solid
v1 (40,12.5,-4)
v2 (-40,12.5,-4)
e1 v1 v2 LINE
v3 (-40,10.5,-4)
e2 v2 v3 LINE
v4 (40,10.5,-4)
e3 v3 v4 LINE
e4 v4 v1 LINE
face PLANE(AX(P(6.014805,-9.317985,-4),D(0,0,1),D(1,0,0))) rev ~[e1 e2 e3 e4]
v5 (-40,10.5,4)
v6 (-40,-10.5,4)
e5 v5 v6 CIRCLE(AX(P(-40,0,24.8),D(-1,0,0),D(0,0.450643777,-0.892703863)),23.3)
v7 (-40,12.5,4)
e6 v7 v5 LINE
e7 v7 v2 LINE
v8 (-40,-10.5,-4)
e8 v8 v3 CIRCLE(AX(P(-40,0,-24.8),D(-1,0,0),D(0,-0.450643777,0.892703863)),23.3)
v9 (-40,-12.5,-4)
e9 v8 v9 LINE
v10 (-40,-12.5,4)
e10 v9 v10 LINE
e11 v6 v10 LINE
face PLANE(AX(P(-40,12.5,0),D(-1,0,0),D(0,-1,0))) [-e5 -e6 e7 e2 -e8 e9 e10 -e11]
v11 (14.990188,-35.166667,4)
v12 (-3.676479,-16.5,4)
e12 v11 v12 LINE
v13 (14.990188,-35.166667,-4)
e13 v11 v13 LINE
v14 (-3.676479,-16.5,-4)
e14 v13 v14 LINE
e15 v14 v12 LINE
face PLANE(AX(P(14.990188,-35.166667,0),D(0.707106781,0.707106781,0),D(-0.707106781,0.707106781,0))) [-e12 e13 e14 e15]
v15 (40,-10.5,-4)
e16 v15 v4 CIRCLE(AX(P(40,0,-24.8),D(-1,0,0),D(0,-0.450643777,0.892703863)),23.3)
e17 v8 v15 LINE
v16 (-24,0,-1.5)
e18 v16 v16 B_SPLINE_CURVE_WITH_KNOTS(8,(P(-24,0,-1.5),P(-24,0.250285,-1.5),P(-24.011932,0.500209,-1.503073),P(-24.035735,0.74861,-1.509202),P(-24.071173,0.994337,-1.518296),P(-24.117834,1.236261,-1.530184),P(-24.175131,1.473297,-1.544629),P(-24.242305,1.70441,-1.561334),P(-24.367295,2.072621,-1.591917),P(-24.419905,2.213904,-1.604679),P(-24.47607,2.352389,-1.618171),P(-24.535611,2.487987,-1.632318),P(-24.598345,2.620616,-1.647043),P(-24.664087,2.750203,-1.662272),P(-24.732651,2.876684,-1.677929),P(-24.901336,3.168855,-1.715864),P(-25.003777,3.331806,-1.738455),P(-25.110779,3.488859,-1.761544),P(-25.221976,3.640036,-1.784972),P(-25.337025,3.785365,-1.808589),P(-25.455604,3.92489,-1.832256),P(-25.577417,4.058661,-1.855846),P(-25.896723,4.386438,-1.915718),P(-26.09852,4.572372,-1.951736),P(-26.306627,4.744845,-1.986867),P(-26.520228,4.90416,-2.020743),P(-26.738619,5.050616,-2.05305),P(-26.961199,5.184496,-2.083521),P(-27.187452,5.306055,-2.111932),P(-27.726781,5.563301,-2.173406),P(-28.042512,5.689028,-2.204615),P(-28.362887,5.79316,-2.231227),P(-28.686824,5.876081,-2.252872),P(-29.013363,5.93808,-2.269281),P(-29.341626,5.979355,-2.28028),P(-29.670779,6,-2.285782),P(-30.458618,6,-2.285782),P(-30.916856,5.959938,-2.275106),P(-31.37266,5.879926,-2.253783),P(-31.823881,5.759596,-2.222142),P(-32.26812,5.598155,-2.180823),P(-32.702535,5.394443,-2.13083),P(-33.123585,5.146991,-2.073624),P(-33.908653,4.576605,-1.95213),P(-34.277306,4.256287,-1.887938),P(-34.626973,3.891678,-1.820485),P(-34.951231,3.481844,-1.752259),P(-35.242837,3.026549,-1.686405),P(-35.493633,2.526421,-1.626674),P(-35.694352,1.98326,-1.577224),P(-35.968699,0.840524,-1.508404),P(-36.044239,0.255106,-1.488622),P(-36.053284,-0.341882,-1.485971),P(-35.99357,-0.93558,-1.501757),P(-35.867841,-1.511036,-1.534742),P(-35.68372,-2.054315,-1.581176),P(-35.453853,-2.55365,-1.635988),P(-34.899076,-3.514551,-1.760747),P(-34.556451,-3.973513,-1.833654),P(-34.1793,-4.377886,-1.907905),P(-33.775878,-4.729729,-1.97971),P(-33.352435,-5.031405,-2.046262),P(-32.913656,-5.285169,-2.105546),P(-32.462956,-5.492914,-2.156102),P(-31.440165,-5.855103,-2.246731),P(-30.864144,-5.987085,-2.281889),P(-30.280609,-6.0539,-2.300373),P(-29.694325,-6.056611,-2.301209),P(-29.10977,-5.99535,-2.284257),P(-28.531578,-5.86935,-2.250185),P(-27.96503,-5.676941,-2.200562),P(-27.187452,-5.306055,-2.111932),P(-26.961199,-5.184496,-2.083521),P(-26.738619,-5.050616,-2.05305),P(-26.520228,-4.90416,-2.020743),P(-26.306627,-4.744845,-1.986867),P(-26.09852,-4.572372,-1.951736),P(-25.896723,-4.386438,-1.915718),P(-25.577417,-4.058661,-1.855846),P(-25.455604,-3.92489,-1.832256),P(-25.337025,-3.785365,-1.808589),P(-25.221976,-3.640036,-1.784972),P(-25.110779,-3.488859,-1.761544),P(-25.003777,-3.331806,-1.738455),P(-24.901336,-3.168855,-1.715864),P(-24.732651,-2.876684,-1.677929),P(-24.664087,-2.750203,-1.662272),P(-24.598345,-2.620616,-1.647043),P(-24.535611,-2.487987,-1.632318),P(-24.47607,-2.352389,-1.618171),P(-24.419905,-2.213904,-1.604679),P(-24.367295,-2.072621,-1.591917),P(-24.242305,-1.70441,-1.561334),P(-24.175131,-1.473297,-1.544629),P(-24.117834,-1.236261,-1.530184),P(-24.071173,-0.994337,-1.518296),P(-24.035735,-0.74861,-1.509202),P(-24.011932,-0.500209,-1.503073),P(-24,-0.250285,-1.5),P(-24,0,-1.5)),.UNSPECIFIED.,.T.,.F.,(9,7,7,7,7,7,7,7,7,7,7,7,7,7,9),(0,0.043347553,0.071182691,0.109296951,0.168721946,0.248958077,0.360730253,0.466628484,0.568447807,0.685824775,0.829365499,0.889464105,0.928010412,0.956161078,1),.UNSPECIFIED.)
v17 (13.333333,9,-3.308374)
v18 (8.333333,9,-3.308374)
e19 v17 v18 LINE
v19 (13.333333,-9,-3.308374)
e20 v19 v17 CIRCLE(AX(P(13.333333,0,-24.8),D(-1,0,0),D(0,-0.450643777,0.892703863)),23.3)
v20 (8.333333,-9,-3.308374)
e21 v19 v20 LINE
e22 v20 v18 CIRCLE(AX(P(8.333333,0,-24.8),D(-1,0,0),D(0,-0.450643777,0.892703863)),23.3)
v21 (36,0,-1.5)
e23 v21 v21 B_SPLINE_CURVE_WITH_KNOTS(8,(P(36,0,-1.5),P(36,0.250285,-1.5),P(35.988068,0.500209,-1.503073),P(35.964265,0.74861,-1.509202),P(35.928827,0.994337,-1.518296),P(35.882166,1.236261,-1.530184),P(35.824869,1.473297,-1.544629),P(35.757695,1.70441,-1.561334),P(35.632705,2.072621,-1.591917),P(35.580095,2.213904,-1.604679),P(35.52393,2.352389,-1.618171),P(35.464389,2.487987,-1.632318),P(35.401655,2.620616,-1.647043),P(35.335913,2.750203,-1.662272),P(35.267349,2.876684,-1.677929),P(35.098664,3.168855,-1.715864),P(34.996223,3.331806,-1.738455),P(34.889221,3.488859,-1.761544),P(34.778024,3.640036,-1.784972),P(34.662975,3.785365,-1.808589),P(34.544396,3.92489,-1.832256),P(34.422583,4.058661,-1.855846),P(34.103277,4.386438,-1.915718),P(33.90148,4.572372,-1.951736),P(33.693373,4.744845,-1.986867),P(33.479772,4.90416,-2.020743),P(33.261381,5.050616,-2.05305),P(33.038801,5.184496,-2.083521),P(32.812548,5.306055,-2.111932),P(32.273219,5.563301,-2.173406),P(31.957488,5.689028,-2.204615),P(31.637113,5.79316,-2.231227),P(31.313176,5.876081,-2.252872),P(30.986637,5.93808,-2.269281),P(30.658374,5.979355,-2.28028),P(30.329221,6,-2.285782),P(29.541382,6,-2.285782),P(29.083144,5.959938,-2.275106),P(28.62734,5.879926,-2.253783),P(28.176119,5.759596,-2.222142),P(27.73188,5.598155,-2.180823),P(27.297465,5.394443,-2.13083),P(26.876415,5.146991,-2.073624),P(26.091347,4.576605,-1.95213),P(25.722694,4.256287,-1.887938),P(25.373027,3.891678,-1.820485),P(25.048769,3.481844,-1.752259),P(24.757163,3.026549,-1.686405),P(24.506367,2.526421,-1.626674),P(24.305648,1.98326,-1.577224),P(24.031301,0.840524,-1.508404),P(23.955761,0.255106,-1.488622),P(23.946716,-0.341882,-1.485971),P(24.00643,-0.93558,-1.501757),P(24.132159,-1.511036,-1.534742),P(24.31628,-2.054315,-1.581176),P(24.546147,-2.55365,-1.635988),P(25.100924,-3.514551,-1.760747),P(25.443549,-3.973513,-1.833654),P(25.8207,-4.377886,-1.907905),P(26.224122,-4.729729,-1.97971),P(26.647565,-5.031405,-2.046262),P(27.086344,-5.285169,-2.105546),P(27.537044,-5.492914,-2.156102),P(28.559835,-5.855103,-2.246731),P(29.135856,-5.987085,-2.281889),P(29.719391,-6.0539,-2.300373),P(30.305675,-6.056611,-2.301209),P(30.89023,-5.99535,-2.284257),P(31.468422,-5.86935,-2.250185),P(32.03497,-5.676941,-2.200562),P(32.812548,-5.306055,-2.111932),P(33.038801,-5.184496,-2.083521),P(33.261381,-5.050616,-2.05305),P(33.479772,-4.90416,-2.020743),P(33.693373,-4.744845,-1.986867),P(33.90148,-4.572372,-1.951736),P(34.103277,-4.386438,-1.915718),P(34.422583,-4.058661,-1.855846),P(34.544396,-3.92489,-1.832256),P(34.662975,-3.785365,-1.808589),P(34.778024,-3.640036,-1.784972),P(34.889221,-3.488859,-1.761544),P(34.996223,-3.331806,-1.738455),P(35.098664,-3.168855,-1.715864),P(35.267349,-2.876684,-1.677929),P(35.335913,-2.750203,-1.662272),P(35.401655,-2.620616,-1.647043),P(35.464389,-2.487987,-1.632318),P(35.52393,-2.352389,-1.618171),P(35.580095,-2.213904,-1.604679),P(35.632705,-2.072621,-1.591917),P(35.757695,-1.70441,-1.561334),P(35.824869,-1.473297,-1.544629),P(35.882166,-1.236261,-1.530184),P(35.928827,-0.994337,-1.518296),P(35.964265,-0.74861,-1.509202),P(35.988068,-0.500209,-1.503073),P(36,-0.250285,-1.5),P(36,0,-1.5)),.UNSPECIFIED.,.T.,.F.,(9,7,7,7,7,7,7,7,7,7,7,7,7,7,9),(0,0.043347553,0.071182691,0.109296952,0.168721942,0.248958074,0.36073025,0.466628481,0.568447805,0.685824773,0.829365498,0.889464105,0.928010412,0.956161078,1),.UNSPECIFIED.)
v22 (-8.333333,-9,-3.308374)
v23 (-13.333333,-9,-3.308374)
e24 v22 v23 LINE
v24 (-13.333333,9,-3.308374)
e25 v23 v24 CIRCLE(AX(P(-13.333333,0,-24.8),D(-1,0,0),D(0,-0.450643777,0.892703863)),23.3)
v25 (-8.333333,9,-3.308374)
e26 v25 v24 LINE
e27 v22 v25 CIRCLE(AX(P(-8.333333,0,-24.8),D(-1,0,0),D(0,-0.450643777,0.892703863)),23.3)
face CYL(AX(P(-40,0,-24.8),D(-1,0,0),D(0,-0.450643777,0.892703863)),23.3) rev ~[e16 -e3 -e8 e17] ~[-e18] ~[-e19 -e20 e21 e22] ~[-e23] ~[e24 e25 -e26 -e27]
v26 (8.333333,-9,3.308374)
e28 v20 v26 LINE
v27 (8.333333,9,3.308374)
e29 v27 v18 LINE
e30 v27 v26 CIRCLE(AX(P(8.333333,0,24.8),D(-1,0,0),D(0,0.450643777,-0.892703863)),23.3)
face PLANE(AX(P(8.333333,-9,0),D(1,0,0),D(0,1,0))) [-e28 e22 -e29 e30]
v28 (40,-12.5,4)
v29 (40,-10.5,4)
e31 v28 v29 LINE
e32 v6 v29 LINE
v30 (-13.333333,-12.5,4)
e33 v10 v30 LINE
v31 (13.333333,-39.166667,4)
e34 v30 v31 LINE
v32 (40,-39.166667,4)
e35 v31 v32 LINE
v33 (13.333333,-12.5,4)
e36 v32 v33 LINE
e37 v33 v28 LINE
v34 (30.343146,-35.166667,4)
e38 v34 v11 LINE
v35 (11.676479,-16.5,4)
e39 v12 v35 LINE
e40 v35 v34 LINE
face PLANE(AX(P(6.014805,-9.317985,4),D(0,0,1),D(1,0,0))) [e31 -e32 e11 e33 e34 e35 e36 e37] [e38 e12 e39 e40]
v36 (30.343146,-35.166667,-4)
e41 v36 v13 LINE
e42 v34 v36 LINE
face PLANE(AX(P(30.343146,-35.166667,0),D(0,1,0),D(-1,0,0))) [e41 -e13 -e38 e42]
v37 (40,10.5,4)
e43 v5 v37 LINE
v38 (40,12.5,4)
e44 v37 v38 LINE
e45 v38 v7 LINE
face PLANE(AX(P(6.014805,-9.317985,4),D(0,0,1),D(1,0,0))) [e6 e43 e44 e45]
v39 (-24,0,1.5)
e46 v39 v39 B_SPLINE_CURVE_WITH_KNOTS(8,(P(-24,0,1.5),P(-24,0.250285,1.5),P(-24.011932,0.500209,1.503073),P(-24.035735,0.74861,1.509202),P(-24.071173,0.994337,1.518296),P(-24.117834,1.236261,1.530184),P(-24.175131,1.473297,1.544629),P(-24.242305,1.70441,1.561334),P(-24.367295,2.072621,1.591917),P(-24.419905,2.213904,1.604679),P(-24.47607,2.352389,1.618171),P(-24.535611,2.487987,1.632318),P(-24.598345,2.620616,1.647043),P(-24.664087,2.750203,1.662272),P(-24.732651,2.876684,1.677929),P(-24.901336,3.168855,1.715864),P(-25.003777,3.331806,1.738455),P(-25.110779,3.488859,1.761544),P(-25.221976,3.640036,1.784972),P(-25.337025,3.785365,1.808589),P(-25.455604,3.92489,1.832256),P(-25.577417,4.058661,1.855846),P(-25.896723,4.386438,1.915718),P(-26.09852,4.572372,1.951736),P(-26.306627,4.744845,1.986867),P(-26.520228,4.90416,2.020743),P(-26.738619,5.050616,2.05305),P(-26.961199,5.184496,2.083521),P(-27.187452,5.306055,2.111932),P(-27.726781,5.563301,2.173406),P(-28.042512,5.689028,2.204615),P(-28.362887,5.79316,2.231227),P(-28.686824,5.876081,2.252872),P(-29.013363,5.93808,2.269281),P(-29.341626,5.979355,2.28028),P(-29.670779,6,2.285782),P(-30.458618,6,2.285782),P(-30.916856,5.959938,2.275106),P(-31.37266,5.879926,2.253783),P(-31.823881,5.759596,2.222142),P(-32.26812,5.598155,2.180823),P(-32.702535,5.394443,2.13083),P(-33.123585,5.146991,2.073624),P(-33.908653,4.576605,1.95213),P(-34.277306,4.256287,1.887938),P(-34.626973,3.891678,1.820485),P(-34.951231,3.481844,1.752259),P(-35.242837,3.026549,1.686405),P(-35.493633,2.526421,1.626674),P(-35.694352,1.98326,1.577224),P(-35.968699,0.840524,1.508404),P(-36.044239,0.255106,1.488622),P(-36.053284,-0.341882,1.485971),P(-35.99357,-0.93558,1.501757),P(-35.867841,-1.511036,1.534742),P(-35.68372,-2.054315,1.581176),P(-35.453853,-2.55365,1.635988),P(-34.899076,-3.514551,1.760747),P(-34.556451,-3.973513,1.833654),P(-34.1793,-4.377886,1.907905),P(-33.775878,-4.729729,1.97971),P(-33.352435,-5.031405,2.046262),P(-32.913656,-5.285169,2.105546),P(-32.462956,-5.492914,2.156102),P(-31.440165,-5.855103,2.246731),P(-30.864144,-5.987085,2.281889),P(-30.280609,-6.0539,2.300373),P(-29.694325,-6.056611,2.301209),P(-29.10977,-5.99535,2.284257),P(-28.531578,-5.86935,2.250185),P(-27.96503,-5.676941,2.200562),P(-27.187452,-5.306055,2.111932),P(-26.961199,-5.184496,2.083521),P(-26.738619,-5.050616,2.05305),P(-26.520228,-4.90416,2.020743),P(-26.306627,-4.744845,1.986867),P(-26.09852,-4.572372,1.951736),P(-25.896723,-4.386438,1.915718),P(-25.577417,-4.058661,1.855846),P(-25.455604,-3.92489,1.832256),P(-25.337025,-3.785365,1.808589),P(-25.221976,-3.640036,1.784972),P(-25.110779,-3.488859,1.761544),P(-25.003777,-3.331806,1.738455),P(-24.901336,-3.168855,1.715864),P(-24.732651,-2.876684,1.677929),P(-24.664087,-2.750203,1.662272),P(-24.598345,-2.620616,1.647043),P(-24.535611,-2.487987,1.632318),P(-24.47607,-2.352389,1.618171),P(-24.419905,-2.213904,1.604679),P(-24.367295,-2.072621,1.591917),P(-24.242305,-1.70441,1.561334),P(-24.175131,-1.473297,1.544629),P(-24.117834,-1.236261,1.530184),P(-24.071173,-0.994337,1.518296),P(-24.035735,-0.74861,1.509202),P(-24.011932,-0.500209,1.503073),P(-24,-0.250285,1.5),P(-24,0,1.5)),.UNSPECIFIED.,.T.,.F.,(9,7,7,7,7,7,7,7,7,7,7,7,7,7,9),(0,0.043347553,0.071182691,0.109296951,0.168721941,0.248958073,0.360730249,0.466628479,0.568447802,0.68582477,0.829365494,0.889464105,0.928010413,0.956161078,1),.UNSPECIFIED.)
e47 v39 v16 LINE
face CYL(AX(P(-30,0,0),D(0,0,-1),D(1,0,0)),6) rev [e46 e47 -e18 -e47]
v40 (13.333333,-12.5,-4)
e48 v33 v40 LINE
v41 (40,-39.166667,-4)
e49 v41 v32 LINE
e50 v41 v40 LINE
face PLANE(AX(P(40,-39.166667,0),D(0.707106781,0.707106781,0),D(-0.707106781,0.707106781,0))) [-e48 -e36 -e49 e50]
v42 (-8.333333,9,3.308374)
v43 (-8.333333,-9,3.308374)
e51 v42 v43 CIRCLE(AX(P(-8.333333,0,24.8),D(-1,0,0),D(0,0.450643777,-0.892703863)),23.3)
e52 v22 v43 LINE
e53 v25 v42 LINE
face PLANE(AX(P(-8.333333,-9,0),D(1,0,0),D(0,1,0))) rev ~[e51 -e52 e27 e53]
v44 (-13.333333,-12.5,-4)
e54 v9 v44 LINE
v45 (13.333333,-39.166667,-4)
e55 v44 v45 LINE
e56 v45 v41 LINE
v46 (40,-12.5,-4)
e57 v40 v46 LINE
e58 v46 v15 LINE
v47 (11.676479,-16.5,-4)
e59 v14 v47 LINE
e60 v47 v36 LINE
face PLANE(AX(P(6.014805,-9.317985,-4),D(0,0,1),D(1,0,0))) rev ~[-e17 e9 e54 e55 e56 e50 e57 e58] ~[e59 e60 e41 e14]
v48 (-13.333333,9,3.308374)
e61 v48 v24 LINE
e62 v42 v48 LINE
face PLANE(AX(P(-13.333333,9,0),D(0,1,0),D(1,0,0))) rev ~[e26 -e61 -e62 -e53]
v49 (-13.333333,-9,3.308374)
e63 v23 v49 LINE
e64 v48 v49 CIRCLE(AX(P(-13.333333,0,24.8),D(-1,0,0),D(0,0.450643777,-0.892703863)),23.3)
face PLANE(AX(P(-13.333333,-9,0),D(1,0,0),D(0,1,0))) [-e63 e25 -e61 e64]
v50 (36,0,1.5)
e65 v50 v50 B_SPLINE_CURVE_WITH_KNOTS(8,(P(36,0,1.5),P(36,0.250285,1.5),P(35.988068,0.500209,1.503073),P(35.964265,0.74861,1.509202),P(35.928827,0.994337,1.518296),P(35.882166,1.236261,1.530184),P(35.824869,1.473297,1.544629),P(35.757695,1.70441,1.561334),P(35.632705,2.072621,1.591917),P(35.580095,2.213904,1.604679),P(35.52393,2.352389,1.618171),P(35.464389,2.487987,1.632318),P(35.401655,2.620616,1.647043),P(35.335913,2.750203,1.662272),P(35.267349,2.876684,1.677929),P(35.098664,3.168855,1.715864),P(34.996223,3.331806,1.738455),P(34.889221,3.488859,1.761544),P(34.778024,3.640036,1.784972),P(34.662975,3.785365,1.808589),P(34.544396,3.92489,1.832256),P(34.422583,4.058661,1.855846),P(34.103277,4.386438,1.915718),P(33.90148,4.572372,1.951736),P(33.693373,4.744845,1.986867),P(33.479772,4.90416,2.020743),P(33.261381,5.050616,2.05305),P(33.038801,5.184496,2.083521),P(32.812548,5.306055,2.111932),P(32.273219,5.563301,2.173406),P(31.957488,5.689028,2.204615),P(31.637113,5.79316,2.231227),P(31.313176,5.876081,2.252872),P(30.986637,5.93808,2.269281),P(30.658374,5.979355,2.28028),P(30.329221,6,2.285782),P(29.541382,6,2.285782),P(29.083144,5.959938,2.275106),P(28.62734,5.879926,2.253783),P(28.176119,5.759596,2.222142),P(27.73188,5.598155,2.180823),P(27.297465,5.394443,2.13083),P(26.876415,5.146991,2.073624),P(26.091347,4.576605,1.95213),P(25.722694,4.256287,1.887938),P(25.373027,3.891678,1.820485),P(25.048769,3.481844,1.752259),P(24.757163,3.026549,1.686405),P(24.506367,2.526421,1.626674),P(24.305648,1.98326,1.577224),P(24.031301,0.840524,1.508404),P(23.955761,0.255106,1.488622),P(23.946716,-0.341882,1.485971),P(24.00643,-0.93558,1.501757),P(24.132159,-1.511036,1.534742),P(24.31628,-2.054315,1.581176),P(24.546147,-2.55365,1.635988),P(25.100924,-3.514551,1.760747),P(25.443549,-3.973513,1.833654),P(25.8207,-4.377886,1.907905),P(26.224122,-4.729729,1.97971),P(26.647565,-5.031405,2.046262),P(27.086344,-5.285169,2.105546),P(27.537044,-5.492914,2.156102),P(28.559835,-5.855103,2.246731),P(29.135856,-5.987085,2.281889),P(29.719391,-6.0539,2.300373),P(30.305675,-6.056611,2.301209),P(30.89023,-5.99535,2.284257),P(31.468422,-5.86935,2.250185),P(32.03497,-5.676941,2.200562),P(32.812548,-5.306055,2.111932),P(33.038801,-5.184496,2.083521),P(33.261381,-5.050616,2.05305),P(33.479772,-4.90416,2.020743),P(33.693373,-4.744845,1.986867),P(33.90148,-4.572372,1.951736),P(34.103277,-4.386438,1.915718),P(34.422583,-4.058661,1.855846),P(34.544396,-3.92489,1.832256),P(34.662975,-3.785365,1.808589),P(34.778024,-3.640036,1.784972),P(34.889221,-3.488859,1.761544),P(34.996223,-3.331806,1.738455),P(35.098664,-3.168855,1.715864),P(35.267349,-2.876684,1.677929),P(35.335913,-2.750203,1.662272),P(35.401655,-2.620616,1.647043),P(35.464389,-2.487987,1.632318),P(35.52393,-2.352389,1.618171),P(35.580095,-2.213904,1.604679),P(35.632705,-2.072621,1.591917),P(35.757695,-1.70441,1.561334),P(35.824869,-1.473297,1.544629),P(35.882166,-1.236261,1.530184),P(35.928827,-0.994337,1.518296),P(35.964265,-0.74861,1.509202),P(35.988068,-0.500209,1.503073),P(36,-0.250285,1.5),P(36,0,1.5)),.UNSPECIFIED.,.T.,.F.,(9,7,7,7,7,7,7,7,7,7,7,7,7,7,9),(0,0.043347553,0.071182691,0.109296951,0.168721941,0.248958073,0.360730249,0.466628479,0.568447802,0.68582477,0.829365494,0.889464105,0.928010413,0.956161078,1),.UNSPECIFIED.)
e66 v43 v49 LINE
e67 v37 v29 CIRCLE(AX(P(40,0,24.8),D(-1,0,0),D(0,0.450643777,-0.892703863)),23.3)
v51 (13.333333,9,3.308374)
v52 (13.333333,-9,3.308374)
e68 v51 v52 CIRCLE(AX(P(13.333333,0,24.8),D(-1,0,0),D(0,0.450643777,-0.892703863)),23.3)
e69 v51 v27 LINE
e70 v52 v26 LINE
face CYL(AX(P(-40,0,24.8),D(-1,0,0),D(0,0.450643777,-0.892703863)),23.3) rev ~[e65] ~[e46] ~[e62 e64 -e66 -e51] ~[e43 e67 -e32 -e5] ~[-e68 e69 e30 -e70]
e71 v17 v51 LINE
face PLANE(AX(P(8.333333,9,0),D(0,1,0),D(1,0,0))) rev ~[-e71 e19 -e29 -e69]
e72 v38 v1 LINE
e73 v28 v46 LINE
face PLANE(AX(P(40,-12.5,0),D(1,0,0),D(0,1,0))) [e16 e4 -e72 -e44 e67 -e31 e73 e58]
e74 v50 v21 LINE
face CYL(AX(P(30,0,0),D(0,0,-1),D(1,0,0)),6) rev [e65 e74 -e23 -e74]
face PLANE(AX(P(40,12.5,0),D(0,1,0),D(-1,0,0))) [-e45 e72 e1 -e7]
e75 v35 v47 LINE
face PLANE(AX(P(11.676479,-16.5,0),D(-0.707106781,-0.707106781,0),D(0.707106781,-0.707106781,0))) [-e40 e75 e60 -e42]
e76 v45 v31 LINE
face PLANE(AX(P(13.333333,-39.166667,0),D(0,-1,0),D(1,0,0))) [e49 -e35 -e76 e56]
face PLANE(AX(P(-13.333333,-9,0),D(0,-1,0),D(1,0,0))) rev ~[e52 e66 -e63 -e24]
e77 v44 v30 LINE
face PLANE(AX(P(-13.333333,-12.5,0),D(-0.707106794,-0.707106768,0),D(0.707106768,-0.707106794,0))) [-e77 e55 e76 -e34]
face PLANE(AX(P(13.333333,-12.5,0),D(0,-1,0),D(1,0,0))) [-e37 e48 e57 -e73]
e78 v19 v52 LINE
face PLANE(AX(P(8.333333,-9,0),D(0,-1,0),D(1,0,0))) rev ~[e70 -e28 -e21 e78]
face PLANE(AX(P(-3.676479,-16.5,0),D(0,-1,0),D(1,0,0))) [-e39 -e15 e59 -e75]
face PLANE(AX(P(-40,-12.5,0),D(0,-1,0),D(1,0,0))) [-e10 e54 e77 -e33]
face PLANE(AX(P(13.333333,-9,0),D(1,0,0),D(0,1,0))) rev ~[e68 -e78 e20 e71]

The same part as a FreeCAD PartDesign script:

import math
import FreeCAD as App
import Part
import Sketcher
Q = App.Units.Quantity


def add_polygon(sketch, points):
    """Adds a closed chain of lines whose ends are joined by coincident constraints."""
    first, n = sketch.GeometryCount, len(points)
    for a, b in zip(points, points[1:] + points[:1]):
        sketch.addGeometry(Part.LineSegment(App.Vector(*a, 0), App.Vector(*b, 0)), False)
    for i in range(n):
        sketch.addConstraint(Sketcher.Constraint("Coincident", first + i, 2, first + (i + 1) % n, 1))

doc = App.newDocument("Part")
body = doc.addObject("PartDesign::Body", "Body")

sketch1 = body.newObject("Sketcher::SketchObject", "Sketch")
sketch1.AttachmentSupport = (doc.getObject("XY_Plane"), [""])
sketch1.MapMode = "FlatFace"
add_polygon(sketch1, [(-40, 12), (-40, -12), (-13, -12), (13, -39), (40, -39), (13, -12), (40, -12), (40, 12)])
add_polygon(sketch1, [(15, -35), (-4, -16), (12, -16), (30, -35)])
sketch1.addGeometry(Part.Circle(App.Vector(-30, 0, 0), App.Vector(0, 0, 1), 6), False)
add_polygon(sketch1, [(-8, -9), (-13, -9), (-13, 9), (-8, 9)])
add_polygon(sketch1, [(13, -9), (8, -9), (8, 9), (13, 9)])
sketch1.addGeometry(Part.Circle(App.Vector(30, 0, 0), App.Vector(0, 0, 1), 6), False)
sketch1.addConstraint([
    Sketcher.Constraint("Vertical", 0),
    Sketcher.Constraint("Horizontal", 1),
    Sketcher.Constraint("Horizontal", 3),
    Sketcher.Constraint("Horizontal", 5),
    Sketcher.Constraint("Vertical", 6),
    Sketcher.Constraint("Horizontal", 7),
    Sketcher.Constraint("Horizontal", 9),
    Sketcher.Constraint("Horizontal", 11),
    Sketcher.Constraint("Horizontal", 13),
    Sketcher.Constraint("Vertical", 14),
    Sketcher.Constraint("Horizontal", 15),
    Sketcher.Constraint("Vertical", 16),
    Sketcher.Constraint("Horizontal", 17),
    Sketcher.Constraint("Vertical", 18),
    Sketcher.Constraint("Horizontal", 19),
    Sketcher.Constraint("Vertical", 20),
    Sketcher.Constraint("Equal", 12, 21),
    Sketcher.Constraint("Symmetric", 12, 3, 21, 3, -1, 1),
    Sketcher.Constraint("Symmetric", 0, 2, 6, 2, -1, 1),
    Sketcher.Constraint("Symmetric", 15, 2, 17, 2, -1, 1),
    Sketcher.Constraint("Symmetric", 13, 2, 19, 2, -1, 1),
    Sketcher.Constraint("Symmetric", 1, 2, 4, 2, -2),
    Sketcher.Constraint("PointOnObject", 12, 3, -1),
    Sketcher.Constraint("Parallel", 2, 4),
    Sketcher.Constraint("Parallel", 4, 8),
    Sketcher.Constraint("Parallel", 8, 10),
    Sketcher.Constraint("Horizontal", 16, 2, 17, 2),
    Sketcher.Constraint("Vertical", 2, 2, 4, 2),
    Sketcher.Constraint("Vertical", 3, 2, 5, 2),
    Sketcher.Constraint("Vertical", 1, 2, 13, 2),
    Sketcher.Constraint("Diameter", 12, Q("12 mm")),
    Sketcher.Constraint("DistanceX", 7, 2, 7, 1, Q("80 mm")),
    Sketcher.Constraint("DistanceX", 13, 2, 13, 1, Q("5 mm")),
    Sketcher.Constraint("DistanceY", 0, 2, 0, 1, Q("25 mm")),
    Sketcher.Constraint("DistanceY", 14, 1, 14, 2, Q("18 mm")),
    Sketcher.Constraint("Angle", 2, Q("-45.000001 deg")),
    Sketcher.Constraint("DistanceX", 12, 3, -1, 1, Q("30 mm")),
    Sketcher.Constraint("DistanceY", 8, 2, 1, 2, Q("4 mm")),
    Sketcher.Constraint("DistanceY", 3, 2, 10, 2, Q("4 mm")),
    Sketcher.Constraint("DistanceX", 9, 1, 9, 2, Q("15.352958 mm")),
    Sketcher.Constraint("DistanceX", 8, 2, -1, 1, Q("3.676479 mm")),
])
pad1 = body.newObject("PartDesign::Pad", "Pad")
pad1.Profile = sketch1
pad1.Length = 8
pad1.Midplane = True

sketch2 = body.newObject("Sketcher::SketchObject", "Sketch001")
sketch2.AttachmentSupport = (doc.getObject("YZ_Plane"), [""])
sketch2.MapMode = "FlatFace"
sketch2.AttachmentOffset = App.Placement(App.Vector(0, 0, -40), App.Rotation())
sketch2.addGeometry([
    Part.ArcOfCircle(Part.Circle(App.Vector(0, 25, 0), App.Vector(0, 0, 1), 23), math.radians(-117), math.radians(-63)),
    Part.LineSegment(App.Vector(-10, 4, 0), App.Vector(10, 4, 0)),
    Part.LineSegment(App.Vector(10, -4, 0), App.Vector(-10, -4, 0)),
    Part.ArcOfCircle(Part.Circle(App.Vector(0, -25, 0), App.Vector(0, 0, 1), 23), math.radians(63), math.radians(117)),
], False)
sketch2.addConstraint([
    Sketcher.Constraint("Coincident", 0, 1, 1, 1),
    Sketcher.Constraint("Coincident", 1, 2, 0, 2),
    Sketcher.Constraint("Coincident", 2, 1, 3, 1),
    Sketcher.Constraint("Coincident", 3, 2, 2, 2),
    Sketcher.Constraint("Horizontal", 1),
    Sketcher.Constraint("Horizontal", 2),
    Sketcher.Constraint("Equal", 0, 3),
    Sketcher.Constraint("Symmetric", 0, 3, 3, 3, -1, 1),
    Sketcher.Constraint("Symmetric", 1, 2, 2, 1, -1),
    Sketcher.Constraint("Radius", 0, Q("23.3 mm")),
    Sketcher.Constraint("DistanceX", 1, 1, 1, 2, Q("21 mm")),
    Sketcher.Constraint("DistanceY", -1, 1, 0, 1, Q("4 mm")),
])
pocket1 = body.newObject("PartDesign::Pocket", "Pocket")
pocket1.Profile = sketch2
pocket1.Type = "ThroughAll"
pocket1.Reversed = True

doc.recompute()
